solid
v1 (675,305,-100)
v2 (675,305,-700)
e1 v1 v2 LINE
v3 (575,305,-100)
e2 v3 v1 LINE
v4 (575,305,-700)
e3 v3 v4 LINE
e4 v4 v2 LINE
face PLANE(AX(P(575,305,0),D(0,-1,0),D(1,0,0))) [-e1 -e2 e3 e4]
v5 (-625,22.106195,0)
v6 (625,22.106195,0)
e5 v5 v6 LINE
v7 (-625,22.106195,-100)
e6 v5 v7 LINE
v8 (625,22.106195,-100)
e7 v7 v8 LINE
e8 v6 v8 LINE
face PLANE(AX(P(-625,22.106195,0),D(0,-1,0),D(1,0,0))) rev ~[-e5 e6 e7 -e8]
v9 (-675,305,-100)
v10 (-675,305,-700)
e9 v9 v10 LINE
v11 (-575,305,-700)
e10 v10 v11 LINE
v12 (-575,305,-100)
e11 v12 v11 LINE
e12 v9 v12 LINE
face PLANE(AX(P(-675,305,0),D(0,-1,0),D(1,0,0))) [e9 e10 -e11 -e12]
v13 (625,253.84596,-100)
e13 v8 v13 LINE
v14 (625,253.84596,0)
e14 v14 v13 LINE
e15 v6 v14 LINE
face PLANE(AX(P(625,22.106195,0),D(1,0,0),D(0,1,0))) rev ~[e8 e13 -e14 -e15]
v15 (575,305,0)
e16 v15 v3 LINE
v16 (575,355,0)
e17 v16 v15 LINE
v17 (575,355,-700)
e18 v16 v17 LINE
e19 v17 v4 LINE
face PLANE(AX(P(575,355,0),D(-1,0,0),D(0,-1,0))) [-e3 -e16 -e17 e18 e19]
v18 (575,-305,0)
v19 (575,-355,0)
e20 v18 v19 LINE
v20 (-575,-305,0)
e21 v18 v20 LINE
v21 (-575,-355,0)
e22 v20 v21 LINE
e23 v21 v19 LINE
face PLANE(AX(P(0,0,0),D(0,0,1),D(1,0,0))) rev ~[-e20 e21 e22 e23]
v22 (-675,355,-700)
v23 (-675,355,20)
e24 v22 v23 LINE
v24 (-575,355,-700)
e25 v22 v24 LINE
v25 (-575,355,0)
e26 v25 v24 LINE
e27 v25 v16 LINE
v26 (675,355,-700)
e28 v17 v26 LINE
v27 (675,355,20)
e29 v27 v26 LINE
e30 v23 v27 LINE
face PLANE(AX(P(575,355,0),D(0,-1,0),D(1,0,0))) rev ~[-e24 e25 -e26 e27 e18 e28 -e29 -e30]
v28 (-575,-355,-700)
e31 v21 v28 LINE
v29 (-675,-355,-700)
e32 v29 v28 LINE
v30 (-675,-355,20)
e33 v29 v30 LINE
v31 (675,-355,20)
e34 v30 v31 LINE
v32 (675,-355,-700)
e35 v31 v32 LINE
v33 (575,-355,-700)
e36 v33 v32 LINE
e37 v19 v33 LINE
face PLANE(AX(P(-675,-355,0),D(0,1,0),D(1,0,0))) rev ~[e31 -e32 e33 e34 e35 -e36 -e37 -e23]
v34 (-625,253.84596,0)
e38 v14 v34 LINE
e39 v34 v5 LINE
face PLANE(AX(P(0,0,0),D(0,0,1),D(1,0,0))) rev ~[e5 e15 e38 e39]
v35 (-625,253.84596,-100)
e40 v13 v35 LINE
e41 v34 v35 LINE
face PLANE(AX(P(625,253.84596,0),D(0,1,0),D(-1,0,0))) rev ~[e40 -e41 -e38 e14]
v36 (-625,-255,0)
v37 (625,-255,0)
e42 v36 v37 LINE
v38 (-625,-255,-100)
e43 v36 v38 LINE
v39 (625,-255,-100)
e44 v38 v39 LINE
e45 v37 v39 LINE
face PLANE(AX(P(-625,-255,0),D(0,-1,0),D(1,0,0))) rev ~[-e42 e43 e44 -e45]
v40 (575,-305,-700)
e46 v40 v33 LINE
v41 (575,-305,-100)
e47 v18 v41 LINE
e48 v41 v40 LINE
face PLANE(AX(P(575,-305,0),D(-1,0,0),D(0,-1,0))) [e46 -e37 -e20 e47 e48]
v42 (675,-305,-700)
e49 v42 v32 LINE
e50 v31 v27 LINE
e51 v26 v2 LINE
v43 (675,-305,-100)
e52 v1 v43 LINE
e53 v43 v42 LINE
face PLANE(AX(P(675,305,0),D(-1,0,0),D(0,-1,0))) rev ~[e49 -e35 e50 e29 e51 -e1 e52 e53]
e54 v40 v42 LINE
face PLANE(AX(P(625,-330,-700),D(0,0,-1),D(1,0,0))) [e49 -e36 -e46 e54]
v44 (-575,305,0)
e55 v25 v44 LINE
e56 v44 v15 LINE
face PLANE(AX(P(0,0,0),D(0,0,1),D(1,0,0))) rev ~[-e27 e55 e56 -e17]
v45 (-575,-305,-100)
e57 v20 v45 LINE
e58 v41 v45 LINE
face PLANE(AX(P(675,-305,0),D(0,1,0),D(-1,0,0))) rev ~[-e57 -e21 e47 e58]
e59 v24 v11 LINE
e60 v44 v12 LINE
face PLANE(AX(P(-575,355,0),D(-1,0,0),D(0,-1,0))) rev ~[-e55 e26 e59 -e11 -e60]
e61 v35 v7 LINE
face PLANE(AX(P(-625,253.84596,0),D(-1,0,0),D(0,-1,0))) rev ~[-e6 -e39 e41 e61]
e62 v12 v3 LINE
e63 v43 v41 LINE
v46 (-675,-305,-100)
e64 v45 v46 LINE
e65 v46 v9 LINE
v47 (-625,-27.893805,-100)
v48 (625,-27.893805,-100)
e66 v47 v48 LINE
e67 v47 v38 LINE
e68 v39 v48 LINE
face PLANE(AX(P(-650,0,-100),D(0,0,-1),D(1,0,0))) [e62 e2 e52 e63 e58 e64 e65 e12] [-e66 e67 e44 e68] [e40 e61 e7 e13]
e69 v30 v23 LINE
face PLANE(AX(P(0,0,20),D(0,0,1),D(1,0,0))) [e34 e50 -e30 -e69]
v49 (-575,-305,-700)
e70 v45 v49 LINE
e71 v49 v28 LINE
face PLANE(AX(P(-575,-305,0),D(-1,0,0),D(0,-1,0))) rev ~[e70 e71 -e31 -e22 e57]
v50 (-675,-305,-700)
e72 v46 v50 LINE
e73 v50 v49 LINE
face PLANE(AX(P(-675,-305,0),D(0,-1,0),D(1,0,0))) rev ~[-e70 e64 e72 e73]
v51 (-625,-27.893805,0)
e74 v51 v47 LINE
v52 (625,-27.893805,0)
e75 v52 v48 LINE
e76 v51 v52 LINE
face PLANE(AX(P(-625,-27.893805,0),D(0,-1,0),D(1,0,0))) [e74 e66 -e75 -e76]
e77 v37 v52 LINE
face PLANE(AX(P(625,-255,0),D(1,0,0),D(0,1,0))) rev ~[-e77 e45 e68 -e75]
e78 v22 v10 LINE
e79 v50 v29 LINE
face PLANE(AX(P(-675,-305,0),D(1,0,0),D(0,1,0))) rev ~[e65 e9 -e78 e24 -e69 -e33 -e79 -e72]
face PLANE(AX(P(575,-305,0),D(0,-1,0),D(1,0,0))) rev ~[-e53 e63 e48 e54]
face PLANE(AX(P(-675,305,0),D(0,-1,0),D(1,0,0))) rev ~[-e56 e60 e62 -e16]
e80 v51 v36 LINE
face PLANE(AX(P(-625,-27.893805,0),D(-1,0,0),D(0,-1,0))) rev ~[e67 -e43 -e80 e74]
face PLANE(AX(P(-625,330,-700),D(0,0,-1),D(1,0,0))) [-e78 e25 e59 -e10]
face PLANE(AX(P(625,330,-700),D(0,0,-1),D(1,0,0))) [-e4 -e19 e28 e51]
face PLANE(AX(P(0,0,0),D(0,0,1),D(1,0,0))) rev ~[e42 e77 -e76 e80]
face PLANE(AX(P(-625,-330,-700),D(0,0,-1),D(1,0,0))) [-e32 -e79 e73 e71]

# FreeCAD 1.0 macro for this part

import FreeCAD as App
import Part
import Sketcher

V = App.Vector


def add_polygon(sketch, points):
    """Adds a closed chain of lines whose ends are joined by coincident constraints."""
    first, n = sketch.GeometryCount, len(points)
    for a, b in zip(points, points[1:] + points[:1]):
        sketch.addGeometry(Part.LineSegment(App.Vector(*a, 0), App.Vector(*b, 0)), False)
    for i in range(n):
        sketch.addConstraint(Sketcher.Constraint("Coincident", first + i, 2, first + (i + 1) % n, 1))

doc = App.newDocument("Part")
body = doc.addObject("PartDesign::Body", "Body")

# Sketch on XY plane
sketch1 = doc.addObject("Sketcher::SketchObject", "Sketch")
body.addObject(sketch1)
sketch1.AttachmentSupport = (doc.XY_Plane, [""])
sketch1.MapMode = "FlatFace"
add_polygon(sketch1, [(-675, 355), (-675, -355), (675, -355), (675, 355)])  # lines 0-3
sketch1.addConstraint(Sketcher.Constraint("Vertical", 0))
sketch1.addConstraint(Sketcher.Constraint("Horizontal", 1))
sketch1.addConstraint(Sketcher.Constraint("Vertical", 2))
sketch1.addConstraint(Sketcher.Constraint("Horizontal", 3))
sketch1.addConstraint(Sketcher.Constraint("Symmetric", 0, 2, 2, 2, -1, 1))
sketch1.addConstraint(Sketcher.Constraint("DistanceX", 1, 1, 1, 2, 1350.0))
sketch1.addConstraint(Sketcher.Constraint("DistanceY", 0, 2, 0, 1, 710.0))
pad1 = doc.addObject("PartDesign::Pad", "Pad")
body.addObject(pad1)
pad1.Profile = sketch1
pad1.Length = 20

# Sketch on XY plane
sketch2 = doc.addObject("Sketcher::SketchObject", "Sketch001")
body.addObject(sketch2)
sketch2.AttachmentSupport = (doc.XY_Plane, [""])
sketch2.MapMode = "FlatFace"
add_polygon(sketch2, [(575, 305), (575, 355), (675, 355), (675, 305)])  # lines 0-3
add_polygon(sketch2, [(-675, -355), (-675, -305), (-575, -305), (-575, -355)])  # lines 4-7
add_polygon(sketch2, [(575, -355), (575, -305), (675, -305), (675, -355)])  # lines 8-11
add_polygon(sketch2, [(-675, 305), (-675, 355), (-575, 355), (-575, 305)])  # lines 12-15
sketch2.addConstraint(Sketcher.Constraint("Vertical", 0))
sketch2.addConstraint(Sketcher.Constraint("Horizontal", 1))
sketch2.addConstraint(Sketcher.Constraint("Vertical", 2))
sketch2.addConstraint(Sketcher.Constraint("Horizontal", 3))
sketch2.addConstraint(Sketcher.Constraint("Vertical", 4))
sketch2.addConstraint(Sketcher.Constraint("Horizontal", 5))
sketch2.addConstraint(Sketcher.Constraint("Vertical", 6))
sketch2.addConstraint(Sketcher.Constraint("Horizontal", 7))
sketch2.addConstraint(Sketcher.Constraint("Vertical", 8))
sketch2.addConstraint(Sketcher.Constraint("Horizontal", 9))
sketch2.addConstraint(Sketcher.Constraint("Vertical", 10))
sketch2.addConstraint(Sketcher.Constraint("Horizontal", 11))
sketch2.addConstraint(Sketcher.Constraint("Vertical", 12))
sketch2.addConstraint(Sketcher.Constraint("Horizontal", 13))
sketch2.addConstraint(Sketcher.Constraint("Vertical", 14))
sketch2.addConstraint(Sketcher.Constraint("Horizontal", 15))
sketch2.addConstraint(Sketcher.Constraint("Symmetric", 2, 2, 4, 2, -1, 1))
sketch2.addConstraint(Sketcher.Constraint("Symmetric", 0, 2, 6, 2, -1, 1))
sketch2.addConstraint(Sketcher.Constraint("Symmetric", 10, 2, 12, 2, -1, 1))
sketch2.addConstraint(Sketcher.Constraint("Symmetric", 8, 2, 14, 2, -1, 1))
sketch2.addConstraint(Sketcher.Constraint("Symmetric", 5, 2, 8, 2, -2))
sketch2.addConstraint(Sketcher.Constraint("Symmetric", 7, 2, 10, 2, -2))
sketch2.addConstraint(Sketcher.Constraint("DistanceX", 1, 1, 1, 2, 100.0))
sketch2.addConstraint(Sketcher.Constraint("DistanceY", 0, 1, 0, 2, 50.0))
sketch2.addConstraint(Sketcher.Constraint("DistanceX", -1, 1, 0, 2, 575.0))
sketch2.addConstraint(Sketcher.Constraint("DistanceY", -1, 1, 0, 2, 355.0))
pad2 = doc.addObject("PartDesign::Pad", "Pad001")
body.addObject(pad2)
pad2.Profile = sketch2
pad2.Length = 700
pad2.Reversed = True

# Sketch on XY plane
sketch3 = doc.addObject("Sketcher::SketchObject", "Sketch002")
body.addObject(sketch3)
sketch3.AttachmentSupport = (doc.XY_Plane, [""])
sketch3.MapMode = "FlatFace"
add_polygon(sketch3, [(-675, -305), (-675, 305), (675, 305), (675, -305)])  # lines 0-3
add_polygon(sketch3, [(625, 253.84596), (-625, 253.84596), (-625, 22.106195), (625, 22.106195)])  # lines 4-7
add_polygon(sketch3, [(-625, -27.893805), (-625, -255), (625, -255), (625, -27.893805)])  # lines 8-11
sketch3.addConstraint(Sketcher.Constraint("Vertical", 0))
sketch3.addConstraint(Sketcher.Constraint("Horizontal", 1))
sketch3.addConstraint(Sketcher.Constraint("Vertical", 2))
sketch3.addConstraint(Sketcher.Constraint("Horizontal", 3))
sketch3.addConstraint(Sketcher.Constraint("Horizontal", 4))
sketch3.addConstraint(Sketcher.Constraint("Vertical", 5))
sketch3.addConstraint(Sketcher.Constraint("Horizontal", 6))
sketch3.addConstraint(Sketcher.Constraint("Vertical", 7))
sketch3.addConstraint(Sketcher.Constraint("Vertical", 8))
sketch3.addConstraint(Sketcher.Constraint("Horizontal", 9))
sketch3.addConstraint(Sketcher.Constraint("Vertical", 10))
sketch3.addConstraint(Sketcher.Constraint("Horizontal", 11))
sketch3.addConstraint(Sketcher.Constraint("Symmetric", 0, 2, 2, 2, -1, 1))
sketch3.addConstraint(Sketcher.Constraint("Vertical", 5, 2, 8, 2))
sketch3.addConstraint(Sketcher.Constraint("Vertical", 7, 2, 9, 2))
sketch3.addConstraint(Sketcher.Constraint("DistanceX", 1, 1, 1, 2, 1350.0))
sketch3.addConstraint(Sketcher.Constraint("DistanceX", 4, 2, 4, 1, 1250.0))
sketch3.addConstraint(Sketcher.Constraint("DistanceY", 0, 1, 0, 2, 610.0))
sketch3.addConstraint(Sketcher.Constraint("DistanceX", 4, 2, -1, 1, 625.0))
sketch3.addConstraint(Sketcher.Constraint("DistanceY", 8, 2, -1, 1, 255.0))
sketch3.addConstraint(Sketcher.Constraint("DistanceY", 10, 2, 6, 2, 50.0))
sketch3.addConstraint(Sketcher.Constraint("DistanceY", 5, 2, 5, 1, 231.739765))
sketch3.addConstraint(Sketcher.Constraint("DistanceY", 8, 2, 8, 1, 227.106195))
pad3 = doc.addObject("PartDesign::Pad", "Pad002")
body.addObject(pad3)
pad3.Profile = sketch3
pad3.Length = 100
pad3.Reversed = True

doc.recompute()
